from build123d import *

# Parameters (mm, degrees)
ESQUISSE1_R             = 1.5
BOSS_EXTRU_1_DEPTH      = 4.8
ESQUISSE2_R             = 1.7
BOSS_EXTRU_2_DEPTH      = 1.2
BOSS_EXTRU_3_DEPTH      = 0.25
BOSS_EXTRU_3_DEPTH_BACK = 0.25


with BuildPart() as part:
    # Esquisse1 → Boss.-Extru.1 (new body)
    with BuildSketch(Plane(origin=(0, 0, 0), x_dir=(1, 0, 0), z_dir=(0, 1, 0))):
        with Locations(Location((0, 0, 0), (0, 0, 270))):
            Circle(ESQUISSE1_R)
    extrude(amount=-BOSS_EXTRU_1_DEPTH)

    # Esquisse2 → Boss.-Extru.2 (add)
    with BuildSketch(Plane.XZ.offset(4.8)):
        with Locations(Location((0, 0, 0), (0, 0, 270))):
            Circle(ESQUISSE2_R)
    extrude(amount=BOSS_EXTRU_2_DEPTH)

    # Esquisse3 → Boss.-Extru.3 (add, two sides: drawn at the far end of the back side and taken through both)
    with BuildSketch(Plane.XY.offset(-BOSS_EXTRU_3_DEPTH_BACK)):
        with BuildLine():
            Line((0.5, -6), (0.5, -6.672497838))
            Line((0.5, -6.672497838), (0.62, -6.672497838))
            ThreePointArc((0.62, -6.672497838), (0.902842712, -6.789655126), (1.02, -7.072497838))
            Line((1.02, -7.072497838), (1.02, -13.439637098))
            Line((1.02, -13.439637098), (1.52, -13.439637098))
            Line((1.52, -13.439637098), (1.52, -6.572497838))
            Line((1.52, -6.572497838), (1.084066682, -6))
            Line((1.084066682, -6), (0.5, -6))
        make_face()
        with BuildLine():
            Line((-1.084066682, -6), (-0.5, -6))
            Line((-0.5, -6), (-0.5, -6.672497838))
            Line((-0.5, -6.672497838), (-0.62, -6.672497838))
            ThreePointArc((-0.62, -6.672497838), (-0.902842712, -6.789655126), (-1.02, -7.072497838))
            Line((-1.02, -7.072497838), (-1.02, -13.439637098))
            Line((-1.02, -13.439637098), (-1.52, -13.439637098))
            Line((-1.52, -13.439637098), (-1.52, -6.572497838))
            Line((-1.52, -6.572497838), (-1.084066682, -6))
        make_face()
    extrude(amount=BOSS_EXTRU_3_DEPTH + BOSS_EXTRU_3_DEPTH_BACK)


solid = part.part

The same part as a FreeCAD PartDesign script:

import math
import FreeCAD as App
import Part
import Sketcher
from FreeCAD import Vector

doc = App.newDocument("Part")
body = doc.addObject("PartDesign::Body", "Body")

# Sketch on XZ plane
sketch1 = body.newObject("Sketcher::SketchObject", "Sketch")
sketch1.AttachmentSupport = (doc.getObject("XZ_Plane"), [""])
sketch1.MapMode = "FlatFace"
sketch1.addGeometry(Part.Circle(Vector(0, 0, 0), Vector(0, 0, 1), 1.5), False)
sketch1.addConstraint([
    Sketcher.Constraint("Coincident", 0, 3, -1, 1),
    Sketcher.Constraint("Diameter", 0, 3.0),
])
pad1 = body.newObject("PartDesign::Pad", "Pad")
pad1.Profile = sketch1
pad1.Length = 4.8

# Sketch on XZ plane
sketch2 = body.newObject("Sketcher::SketchObject", "Sketch001")
sketch2.AttachmentSupport = (doc.getObject("XZ_Plane"), [""])
sketch2.MapMode = "FlatFace"
sketch2.AttachmentOffset = App.Placement(Vector(0, 0, 4.8), App.Rotation())
sketch2.addGeometry(Part.Circle(Vector(0, 0, 0), Vector(0, 0, 1), 1.7), False)
sketch2.addConstraint([
    Sketcher.Constraint("Coincident", 0, 3, -1, 1),
    Sketcher.Constraint("Diameter", 0, 3.4),
])
pad2 = body.newObject("PartDesign::Pad", "Pad001")
pad2.Profile = sketch2
pad2.Length = 1.2

# Sketch on XY plane
sketch3 = body.newObject("Sketcher::SketchObject", "Sketch002")
sketch3.AttachmentSupport = (doc.getObject("XY_Plane"), [""])
sketch3.MapMode = "FlatFace"
sketch3.addGeometry([
    Part.LineSegment(Vector(0.5, -6, 0), Vector(0.5, -6.672498, 0)),  # 0
    Part.LineSegment(Vector(0.5, -6.672498, 0), Vector(0.62, -6.672498, 0)),  # 1
    Part.ArcOfCircle(Part.Circle(Vector(0.62, -7.072498, 0), Vector(0, 0, 1), 0.4), math.radians(0), math.radians(90)),  # 2
    Part.LineSegment(Vector(1.02, -7.072498, 0), Vector(1.02, -13.439637, 0)),  # 3
    Part.LineSegment(Vector(1.02, -13.439637, 0), Vector(1.52, -13.439637, 0)),  # 4
    Part.LineSegment(Vector(1.52, -13.439637, 0), Vector(1.52, -6.572498, 0)),  # 5
    Part.LineSegment(Vector(1.52, -6.572498, 0), Vector(1.084067, -6, 0)),  # 6
    Part.LineSegment(Vector(1.084067, -6, 0), Vector(0.5, -6, 0)),  # 7
    Part.LineSegment(Vector(-0.5, -6, 0), Vector(-1.084067, -6, 0)),  # 8
    Part.LineSegment(Vector(-1.084067, -6, 0), Vector(-1.52, -6.572498, 0)),  # 9
    Part.LineSegment(Vector(-1.52, -6.572498, 0), Vector(-1.52, -13.439637, 0)),  # 10
    Part.LineSegment(Vector(-1.52, -13.439637, 0), Vector(-1.02, -13.439637, 0)),  # 11
    Part.LineSegment(Vector(-1.02, -13.439637, 0), Vector(-1.02, -7.072498, 0)),  # 12
    Part.ArcOfCircle(Part.Circle(Vector(-0.62, -7.072498, 0), Vector(0, 0, 1), 0.4), math.radians(90), math.radians(180)),  # 13
    Part.LineSegment(Vector(-0.62, -6.672498, 0), Vector(-0.5, -6.672498, 0)),  # 14
    Part.LineSegment(Vector(-0.5, -6.672498, 0), Vector(-0.5, -6, 0)),  # 15
], False)
sketch3.addConstraint([
    Sketcher.Constraint("Coincident", 0, 2, 1, 1),
    Sketcher.Constraint("Tangent", 1, 2, 2, 2),
    Sketcher.Constraint("Tangent", 2, 1, 3, 1),
    Sketcher.Constraint("Coincident", 3, 2, 4, 1),
    Sketcher.Constraint("Coincident", 4, 2, 5, 1),
    Sketcher.Constraint("Coincident", 5, 2, 6, 1),
    Sketcher.Constraint("Coincident", 6, 2, 7, 1),
    Sketcher.Constraint("Coincident", 7, 2, 0, 1),
    Sketcher.Constraint("Coincident", 8, 2, 9, 1),
    Sketcher.Constraint("Coincident", 9, 2, 10, 1),
    Sketcher.Constraint("Coincident", 10, 2, 11, 1),
    Sketcher.Constraint("Coincident", 11, 2, 12, 1),
    Sketcher.Constraint("Tangent", 12, 2, 13, 2),
    Sketcher.Constraint("Tangent", 13, 1, 14, 1),
    Sketcher.Constraint("Coincident", 14, 2, 15, 1),
    Sketcher.Constraint("Coincident", 15, 2, 8, 1),
    Sketcher.Constraint("Vertical", 0),
    Sketcher.Constraint("Horizontal", 1),
    Sketcher.Constraint("Vertical", 3),
    Sketcher.Constraint("Horizontal", 4),
    Sketcher.Constraint("Vertical", 5),
    Sketcher.Constraint("Horizontal", 7),
    Sketcher.Constraint("Horizontal", 8),
    Sketcher.Constraint("Vertical", 10),
    Sketcher.Constraint("Horizontal", 11),
    Sketcher.Constraint("Vertical", 12),
    Sketcher.Constraint("Horizontal", 14),
    Sketcher.Constraint("Vertical", 15),
    Sketcher.Constraint("Equal", 2, 13),
    Sketcher.Constraint("Symmetric", 2, 3, 13, 3, -2),
    Sketcher.Constraint("Symmetric", 6, 2, 8, 2, -2),
    Sketcher.Constraint("Symmetric", 5, 2, 9, 2, -2),
    Sketcher.Constraint("Horizontal", 4, 2, 10, 2),
    Sketcher.Constraint("Equal", 7, 8),
    Sketcher.Constraint("Radius", 2, 0.4),
    Sketcher.Constraint("DistanceX", 4, 1, 4, 2, 0.5),
    Sketcher.Constraint("DistanceY", 6, 2, -1, 1, 6.0),
    Sketcher.Constraint("DistanceX", 14, 2, 0, 2, 1.0),
    Sketcher.Constraint("DistanceX", 1, 1, 1, 2, 0.12),
    Sketcher.Constraint("DistanceY", 2, 1, 5, 2, 0.5),
    Sketcher.Constraint("DistanceY", 3, 2, 3, 1, 6.367139),
    Sketcher.Constraint("DistanceX", 7, 2, 7, 1, 0.584067),
    Sketcher.Constraint("DistanceY", 0, 2, 0, 1, 0.672498),
])
pad3 = body.newObject("PartDesign::Pad", "Pad002")
pad3.Profile = sketch3
pad3.Type = "TwoLengths"
pad3.Length = 0.25
pad3.Length2 = 0.25

doc.recompute()
